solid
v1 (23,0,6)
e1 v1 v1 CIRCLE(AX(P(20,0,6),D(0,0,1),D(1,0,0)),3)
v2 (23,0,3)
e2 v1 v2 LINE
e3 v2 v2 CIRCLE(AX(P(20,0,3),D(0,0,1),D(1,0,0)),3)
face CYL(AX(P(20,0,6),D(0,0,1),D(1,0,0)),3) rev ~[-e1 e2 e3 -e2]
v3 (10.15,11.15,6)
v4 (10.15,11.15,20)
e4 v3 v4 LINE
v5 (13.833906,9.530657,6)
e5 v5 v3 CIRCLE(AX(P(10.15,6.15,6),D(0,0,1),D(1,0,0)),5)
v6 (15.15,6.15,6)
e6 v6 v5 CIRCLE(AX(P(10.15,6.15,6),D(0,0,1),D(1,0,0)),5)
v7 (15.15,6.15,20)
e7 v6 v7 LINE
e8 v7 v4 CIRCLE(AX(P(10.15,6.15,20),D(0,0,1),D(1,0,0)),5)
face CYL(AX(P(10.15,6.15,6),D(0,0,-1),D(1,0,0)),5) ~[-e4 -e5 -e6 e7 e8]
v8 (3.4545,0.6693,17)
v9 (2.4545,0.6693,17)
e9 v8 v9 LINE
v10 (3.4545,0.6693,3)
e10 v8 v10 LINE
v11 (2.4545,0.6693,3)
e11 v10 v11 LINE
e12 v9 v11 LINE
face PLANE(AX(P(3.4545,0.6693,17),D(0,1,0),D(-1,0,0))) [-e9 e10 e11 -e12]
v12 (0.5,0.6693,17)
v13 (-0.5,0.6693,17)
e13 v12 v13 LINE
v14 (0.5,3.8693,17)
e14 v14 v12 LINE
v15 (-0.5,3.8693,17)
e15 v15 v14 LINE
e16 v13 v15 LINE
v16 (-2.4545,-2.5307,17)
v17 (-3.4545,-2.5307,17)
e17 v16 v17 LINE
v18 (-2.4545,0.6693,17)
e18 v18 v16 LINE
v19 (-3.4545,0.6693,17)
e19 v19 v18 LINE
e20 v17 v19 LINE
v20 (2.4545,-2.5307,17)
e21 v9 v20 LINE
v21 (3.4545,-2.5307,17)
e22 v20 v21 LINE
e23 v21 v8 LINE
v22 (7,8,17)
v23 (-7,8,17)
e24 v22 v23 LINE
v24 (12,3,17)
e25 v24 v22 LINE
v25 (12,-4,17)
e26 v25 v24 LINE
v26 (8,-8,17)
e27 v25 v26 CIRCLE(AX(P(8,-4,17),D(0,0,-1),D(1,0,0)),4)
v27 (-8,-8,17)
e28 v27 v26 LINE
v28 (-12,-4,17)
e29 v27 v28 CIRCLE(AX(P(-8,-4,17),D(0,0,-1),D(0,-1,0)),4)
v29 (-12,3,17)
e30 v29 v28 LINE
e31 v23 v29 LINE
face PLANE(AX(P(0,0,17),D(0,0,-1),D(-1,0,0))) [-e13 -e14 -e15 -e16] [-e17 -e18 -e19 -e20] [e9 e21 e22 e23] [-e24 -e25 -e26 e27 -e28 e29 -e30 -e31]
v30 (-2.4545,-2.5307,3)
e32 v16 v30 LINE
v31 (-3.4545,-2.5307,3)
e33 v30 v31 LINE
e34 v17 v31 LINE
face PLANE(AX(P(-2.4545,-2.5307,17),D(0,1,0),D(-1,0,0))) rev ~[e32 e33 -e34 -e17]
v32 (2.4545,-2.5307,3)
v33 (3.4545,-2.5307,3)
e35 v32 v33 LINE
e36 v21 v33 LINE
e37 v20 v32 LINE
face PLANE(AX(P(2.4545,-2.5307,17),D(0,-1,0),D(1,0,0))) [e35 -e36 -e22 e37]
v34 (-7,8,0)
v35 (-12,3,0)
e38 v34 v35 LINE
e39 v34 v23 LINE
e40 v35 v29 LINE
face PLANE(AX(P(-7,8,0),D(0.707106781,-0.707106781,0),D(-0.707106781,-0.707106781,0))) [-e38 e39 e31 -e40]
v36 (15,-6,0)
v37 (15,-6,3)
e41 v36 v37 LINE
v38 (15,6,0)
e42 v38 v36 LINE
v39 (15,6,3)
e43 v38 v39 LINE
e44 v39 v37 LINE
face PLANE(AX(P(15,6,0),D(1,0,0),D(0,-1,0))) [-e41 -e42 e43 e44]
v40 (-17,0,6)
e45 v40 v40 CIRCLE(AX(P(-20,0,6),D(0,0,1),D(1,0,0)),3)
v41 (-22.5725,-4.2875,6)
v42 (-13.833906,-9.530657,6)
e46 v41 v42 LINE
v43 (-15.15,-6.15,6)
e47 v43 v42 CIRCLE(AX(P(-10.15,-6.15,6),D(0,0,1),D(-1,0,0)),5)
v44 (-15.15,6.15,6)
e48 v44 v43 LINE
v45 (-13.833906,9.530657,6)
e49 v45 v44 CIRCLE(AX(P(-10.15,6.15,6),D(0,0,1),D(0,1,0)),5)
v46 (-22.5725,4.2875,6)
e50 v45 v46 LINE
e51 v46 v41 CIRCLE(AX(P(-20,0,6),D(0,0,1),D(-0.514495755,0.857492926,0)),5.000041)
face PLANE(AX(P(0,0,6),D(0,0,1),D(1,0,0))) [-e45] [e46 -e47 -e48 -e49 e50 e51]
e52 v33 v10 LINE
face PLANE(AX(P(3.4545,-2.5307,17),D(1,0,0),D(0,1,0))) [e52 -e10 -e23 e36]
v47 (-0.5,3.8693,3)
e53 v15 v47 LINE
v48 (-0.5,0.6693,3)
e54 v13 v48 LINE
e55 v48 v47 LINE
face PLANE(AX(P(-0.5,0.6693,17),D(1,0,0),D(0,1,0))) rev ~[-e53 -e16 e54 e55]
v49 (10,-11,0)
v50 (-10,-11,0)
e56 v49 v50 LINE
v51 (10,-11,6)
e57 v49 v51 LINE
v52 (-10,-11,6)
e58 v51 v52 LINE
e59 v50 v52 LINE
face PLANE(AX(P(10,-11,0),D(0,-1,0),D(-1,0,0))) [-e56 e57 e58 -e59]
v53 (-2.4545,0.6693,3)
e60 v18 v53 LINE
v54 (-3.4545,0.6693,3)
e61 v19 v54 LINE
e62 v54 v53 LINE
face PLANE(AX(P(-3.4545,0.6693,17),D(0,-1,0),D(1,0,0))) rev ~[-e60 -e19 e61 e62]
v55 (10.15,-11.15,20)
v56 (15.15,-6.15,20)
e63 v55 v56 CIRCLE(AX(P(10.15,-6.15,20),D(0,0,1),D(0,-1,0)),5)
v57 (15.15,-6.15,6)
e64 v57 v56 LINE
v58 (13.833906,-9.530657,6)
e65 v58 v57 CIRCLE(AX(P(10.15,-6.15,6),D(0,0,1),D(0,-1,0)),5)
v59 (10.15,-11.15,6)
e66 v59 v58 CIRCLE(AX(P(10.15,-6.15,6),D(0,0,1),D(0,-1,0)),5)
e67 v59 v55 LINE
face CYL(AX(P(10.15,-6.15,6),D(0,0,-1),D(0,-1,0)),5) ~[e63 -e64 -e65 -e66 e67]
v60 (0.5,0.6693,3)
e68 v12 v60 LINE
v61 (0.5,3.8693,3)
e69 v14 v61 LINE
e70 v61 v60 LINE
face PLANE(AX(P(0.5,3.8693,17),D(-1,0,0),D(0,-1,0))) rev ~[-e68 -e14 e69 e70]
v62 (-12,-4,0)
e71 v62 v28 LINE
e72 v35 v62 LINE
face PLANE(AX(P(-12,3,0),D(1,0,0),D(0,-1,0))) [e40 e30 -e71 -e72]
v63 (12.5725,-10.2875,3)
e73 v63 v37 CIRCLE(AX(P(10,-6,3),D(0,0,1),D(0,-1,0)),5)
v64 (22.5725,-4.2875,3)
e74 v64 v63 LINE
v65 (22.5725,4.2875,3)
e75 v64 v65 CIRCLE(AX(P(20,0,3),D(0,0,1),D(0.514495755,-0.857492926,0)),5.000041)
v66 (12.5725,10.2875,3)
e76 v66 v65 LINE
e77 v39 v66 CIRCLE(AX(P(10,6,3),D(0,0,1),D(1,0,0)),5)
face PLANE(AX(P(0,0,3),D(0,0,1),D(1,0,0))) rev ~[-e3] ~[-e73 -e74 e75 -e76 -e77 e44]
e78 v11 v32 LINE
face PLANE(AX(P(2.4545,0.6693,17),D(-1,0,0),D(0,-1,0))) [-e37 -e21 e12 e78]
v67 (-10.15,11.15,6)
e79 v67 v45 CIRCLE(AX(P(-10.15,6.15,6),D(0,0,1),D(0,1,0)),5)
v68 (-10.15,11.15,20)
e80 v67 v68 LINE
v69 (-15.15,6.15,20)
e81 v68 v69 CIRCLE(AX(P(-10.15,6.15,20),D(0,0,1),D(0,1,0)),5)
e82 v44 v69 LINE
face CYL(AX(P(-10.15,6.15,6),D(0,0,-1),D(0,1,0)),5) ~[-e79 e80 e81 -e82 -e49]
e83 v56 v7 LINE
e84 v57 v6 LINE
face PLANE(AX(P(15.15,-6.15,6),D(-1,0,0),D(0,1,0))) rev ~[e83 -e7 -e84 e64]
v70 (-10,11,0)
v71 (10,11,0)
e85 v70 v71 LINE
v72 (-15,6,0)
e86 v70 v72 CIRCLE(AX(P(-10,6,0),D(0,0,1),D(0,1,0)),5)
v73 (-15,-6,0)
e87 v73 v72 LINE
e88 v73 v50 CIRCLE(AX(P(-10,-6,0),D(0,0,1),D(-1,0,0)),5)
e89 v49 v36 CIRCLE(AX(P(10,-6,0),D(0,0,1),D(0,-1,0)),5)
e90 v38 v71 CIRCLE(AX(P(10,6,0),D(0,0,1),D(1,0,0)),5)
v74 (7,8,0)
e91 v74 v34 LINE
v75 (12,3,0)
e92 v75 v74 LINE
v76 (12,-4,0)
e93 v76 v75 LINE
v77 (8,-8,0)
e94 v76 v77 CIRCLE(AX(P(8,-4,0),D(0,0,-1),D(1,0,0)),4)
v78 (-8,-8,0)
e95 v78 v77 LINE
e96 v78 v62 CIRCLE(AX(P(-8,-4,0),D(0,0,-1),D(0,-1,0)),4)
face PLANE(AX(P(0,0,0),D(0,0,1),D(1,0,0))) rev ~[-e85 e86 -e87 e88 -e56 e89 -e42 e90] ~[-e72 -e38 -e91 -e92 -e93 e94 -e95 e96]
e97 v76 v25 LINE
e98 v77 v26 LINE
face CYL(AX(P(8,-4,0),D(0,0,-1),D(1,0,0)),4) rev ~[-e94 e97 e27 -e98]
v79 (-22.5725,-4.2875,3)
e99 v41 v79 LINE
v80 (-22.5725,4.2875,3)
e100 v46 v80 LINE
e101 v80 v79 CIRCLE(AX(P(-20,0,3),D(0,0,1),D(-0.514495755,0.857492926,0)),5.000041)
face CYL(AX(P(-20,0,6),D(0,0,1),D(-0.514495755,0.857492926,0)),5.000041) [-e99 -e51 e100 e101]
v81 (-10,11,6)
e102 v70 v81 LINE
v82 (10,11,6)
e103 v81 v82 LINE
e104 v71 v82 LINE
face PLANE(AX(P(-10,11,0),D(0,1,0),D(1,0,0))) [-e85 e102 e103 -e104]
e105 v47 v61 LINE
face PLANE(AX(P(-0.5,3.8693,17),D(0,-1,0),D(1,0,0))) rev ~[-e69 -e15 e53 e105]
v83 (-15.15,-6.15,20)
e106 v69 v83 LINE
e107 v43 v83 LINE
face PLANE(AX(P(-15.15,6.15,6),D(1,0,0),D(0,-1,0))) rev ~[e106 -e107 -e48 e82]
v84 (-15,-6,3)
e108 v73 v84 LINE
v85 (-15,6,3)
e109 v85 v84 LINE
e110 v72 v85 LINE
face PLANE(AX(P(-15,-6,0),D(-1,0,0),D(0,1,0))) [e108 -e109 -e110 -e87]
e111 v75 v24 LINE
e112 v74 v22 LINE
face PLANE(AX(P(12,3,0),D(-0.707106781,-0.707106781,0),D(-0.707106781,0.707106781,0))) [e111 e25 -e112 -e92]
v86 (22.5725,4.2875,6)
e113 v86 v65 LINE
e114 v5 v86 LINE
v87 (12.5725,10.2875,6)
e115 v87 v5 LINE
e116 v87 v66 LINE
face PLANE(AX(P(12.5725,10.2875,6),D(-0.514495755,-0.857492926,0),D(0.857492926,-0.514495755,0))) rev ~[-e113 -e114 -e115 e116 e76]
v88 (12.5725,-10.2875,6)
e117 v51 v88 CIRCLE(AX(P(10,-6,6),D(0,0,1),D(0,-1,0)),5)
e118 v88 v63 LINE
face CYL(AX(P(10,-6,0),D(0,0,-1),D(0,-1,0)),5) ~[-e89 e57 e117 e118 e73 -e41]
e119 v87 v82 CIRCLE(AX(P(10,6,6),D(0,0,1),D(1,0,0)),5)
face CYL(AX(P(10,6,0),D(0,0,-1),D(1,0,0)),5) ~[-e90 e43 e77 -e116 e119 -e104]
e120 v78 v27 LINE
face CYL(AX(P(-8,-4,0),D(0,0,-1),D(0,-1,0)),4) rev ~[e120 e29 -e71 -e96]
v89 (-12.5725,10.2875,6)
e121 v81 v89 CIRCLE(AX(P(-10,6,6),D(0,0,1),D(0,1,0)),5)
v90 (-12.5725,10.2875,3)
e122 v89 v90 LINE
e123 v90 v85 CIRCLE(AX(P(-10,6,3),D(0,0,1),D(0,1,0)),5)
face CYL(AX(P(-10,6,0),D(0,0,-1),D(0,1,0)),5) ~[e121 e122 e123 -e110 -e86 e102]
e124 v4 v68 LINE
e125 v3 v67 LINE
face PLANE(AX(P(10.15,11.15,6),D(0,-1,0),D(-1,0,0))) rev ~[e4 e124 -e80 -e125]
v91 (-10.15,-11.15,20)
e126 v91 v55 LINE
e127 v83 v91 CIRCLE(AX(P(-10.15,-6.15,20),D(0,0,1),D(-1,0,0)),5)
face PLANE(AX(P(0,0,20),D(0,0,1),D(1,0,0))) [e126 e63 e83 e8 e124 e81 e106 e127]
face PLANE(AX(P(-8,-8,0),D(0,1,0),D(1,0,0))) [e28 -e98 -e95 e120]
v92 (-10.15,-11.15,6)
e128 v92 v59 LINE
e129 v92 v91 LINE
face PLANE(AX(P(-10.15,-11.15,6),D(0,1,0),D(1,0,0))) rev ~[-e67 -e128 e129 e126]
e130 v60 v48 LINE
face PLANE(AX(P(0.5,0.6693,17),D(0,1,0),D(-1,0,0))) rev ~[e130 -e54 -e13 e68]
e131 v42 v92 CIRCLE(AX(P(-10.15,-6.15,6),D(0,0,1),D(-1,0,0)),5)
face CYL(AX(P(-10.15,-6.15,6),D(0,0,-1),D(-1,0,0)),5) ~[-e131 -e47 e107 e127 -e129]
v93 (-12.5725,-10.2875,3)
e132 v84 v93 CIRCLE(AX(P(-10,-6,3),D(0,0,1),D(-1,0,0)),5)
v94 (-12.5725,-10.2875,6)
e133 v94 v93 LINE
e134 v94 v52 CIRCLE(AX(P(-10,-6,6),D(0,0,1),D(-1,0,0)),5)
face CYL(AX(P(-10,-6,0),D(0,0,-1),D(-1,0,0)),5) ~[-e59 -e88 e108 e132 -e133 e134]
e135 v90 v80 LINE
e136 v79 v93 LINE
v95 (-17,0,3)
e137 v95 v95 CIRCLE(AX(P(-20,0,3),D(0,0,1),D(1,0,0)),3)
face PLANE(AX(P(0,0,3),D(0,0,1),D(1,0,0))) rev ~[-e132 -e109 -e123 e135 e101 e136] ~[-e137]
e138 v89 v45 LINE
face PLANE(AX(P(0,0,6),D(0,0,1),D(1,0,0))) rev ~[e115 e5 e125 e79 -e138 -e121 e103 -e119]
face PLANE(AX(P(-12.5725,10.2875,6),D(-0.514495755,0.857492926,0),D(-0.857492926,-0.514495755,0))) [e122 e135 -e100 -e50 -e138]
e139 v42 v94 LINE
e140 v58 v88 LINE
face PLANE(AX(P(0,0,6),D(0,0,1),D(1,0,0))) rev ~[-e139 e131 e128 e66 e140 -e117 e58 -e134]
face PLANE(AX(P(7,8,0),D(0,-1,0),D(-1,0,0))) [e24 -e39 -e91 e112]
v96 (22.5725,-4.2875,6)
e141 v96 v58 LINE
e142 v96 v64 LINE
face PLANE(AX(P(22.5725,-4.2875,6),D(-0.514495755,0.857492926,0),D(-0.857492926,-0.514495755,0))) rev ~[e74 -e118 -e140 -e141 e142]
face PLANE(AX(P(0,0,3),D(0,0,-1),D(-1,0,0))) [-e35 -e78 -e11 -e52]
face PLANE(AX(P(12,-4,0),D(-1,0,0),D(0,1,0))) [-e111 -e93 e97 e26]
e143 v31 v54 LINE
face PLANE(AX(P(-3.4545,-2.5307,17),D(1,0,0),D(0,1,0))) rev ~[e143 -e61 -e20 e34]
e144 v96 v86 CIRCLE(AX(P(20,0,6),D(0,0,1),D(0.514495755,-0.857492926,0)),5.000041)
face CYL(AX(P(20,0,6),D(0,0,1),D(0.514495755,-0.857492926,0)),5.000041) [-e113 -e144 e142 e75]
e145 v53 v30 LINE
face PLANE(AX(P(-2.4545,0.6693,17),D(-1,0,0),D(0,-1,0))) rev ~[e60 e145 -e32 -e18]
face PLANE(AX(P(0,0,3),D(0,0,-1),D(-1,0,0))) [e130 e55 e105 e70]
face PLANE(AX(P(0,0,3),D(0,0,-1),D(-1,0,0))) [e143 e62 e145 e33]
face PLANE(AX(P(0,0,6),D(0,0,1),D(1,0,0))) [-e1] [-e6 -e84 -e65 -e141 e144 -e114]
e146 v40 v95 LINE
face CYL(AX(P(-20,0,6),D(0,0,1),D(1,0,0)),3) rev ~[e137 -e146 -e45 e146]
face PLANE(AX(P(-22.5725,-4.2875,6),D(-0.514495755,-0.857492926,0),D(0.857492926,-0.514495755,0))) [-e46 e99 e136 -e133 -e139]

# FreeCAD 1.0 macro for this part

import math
import FreeCAD as App
import Part
import Sketcher

V = App.Vector
Q = App.Units.Quantity


def add_polygon(sketch, points):
    """Adds a closed chain of lines whose ends are joined by coincident constraints."""
    first, n = sketch.GeometryCount, len(points)
    for a, b in zip(points, points[1:] + points[:1]):
        sketch.addGeometry(Part.LineSegment(App.Vector(*a, 0), App.Vector(*b, 0)), False)
    for i in range(n):
        sketch.addConstraint(Sketcher.Constraint("Coincident", first + i, 2, first + (i + 1) % n, 1))

doc = App.newDocument("Part")
body = doc.addObject("PartDesign::Body", "Body")

# Sketch on XY plane
sketch1 = body.newObject("Sketcher::SketchObject", "Sketch")
sketch1.AttachmentSupport = (doc.getObject("XY_Plane"), [""])
sketch1.MapMode = "FlatFace"
sketch1.addGeometry([
    Part.LineSegment(V(10, 11, 0), V(-10, 11, 0)),  # 0
    Part.ArcOfCircle(Part.Circle(V(-10, 6, 0), V(0, 0, 1), 5), math.radians(90), math.radians(180)),  # 1
    Part.LineSegment(V(-15, 6, 0), V(-15, -6, 0)),  # 2
    Part.ArcOfCircle(Part.Circle(V(-10, -6, 0), V(0, 0, 1), 5), math.radians(180), math.radians(270)),  # 3
    Part.LineSegment(V(-10, -11, 0), V(10, -11, 0)),  # 4
    Part.ArcOfCircle(Part.Circle(V(10, -6, 0), V(0, 0, 1), 5), math.radians(-90), math.radians(0)),  # 5
    Part.LineSegment(V(15, -6, 0), V(15, 6, 0)),  # 6
    Part.ArcOfCircle(Part.Circle(V(10, 6, 0), V(0, 0, 1), 5), math.radians(0), math.radians(90)),  # 7
], False)
sketch1.addConstraint([
    Sketcher.Constraint("Tangent", 0, 2, 1, 1),
    Sketcher.Constraint("Tangent", 1, 2, 2, 1),
    Sketcher.Constraint("Tangent", 2, 2, 3, 1),
    Sketcher.Constraint("Tangent", 3, 2, 4, 1),
    Sketcher.Constraint("Tangent", 4, 2, 5, 1),
    Sketcher.Constraint("Tangent", 5, 2, 6, 1),
    Sketcher.Constraint("Tangent", 6, 2, 7, 1),
    Sketcher.Constraint("Tangent", 7, 2, 0, 1),
    Sketcher.Constraint("Horizontal", 0),
    Sketcher.Constraint("Vertical", 2),
    Sketcher.Constraint("Horizontal", 4),
    Sketcher.Constraint("Vertical", 6),
    Sketcher.Constraint("Equal", 1, 3),
    Sketcher.Constraint("Equal", 3, 5),
    Sketcher.Constraint("Equal", 5, 7),
    Sketcher.Constraint("Symmetric", 1, 3, 5, 3, -1, 1),
    Sketcher.Constraint("Radius", 1, Q("5 mm")),
    Sketcher.Constraint("DistanceX", 0, 2, 0, 1, Q("20 mm")),
    Sketcher.Constraint("DistanceY", 2, 2, 2, 1, Q("12 mm")),
])
pad1 = body.newObject("PartDesign::Pad", "Pad")
pad1.Profile = sketch1
pad1.Length = 6

# Sketch on XY plane
sketch2 = body.newObject("Sketcher::SketchObject", "Sketch001")
sketch2.AttachmentSupport = (doc.getObject("XY_Plane"), [""])
sketch2.MapMode = "FlatFace"
sketch2.AttachmentOffset = App.Placement(V(0, 0, 6), App.Rotation())
sketch2.addGeometry([
    Part.ArcOfCircle(Part.Circle(V(-10, 6, 0), V(0, 0, 1), 5), math.radians(121), math.radians(180)),  # 0
    Part.LineSegment(V(-12.6, 10.3, 0), V(-22.6, 4.3, 0)),  # 1
    Part.ArcOfCircle(Part.Circle(V(-20, 0, 0), V(0, 0, 1), 5), math.radians(121), math.radians(239)),  # 2
    Part.LineSegment(V(-22.6, -4.3, 0), V(-12.6, -10.3, 0)),  # 3
    Part.ArcOfCircle(Part.Circle(V(-10, -6, 0), V(0, 0, 1), 5), math.radians(180), math.radians(239)),  # 4
    Part.LineSegment(V(-15, -6, 0), V(-15, 6, 0)),  # 5
    Part.ArcOfCircle(Part.Circle(V(10, 6, 0), V(0, 0, 1), 5), math.radians(0), math.radians(59)),  # 6
    Part.LineSegment(V(15, 6, 0), V(15, -6, 0)),  # 7
    Part.ArcOfCircle(Part.Circle(V(10, -6, 0), V(0, 0, 1), 5), math.radians(-59), math.radians(0)),  # 8
    Part.LineSegment(V(12.6, -10.3, 0), V(22.6, -4.3, 0)),  # 9
    Part.ArcOfCircle(Part.Circle(V(20, 0, 0), V(0, 0, 1), 5), math.radians(-59), math.radians(59)),  # 10
    Part.LineSegment(V(22.6, 4.3, 0), V(12.6, 10.3, 0)),  # 11
], False)
sketch2.addConstraint([
    Sketcher.Constraint("Tangent", 0, 1, 1, 1),
    Sketcher.Constraint("Tangent", 1, 2, 2, 1),
    Sketcher.Constraint("Tangent", 2, 2, 3, 1),
    Sketcher.Constraint("Tangent", 3, 2, 4, 2),
    Sketcher.Constraint("Tangent", 4, 1, 5, 1),
    Sketcher.Constraint("Tangent", 5, 2, 0, 2),
    Sketcher.Constraint("Tangent", 6, 1, 7, 1),
    Sketcher.Constraint("Tangent", 7, 2, 8, 2),
    Sketcher.Constraint("Tangent", 8, 1, 9, 1),
    Sketcher.Constraint("Tangent", 9, 2, 10, 1),
    Sketcher.Constraint("Tangent", 10, 2, 11, 1),
    Sketcher.Constraint("Tangent", 11, 2, 6, 2),
    Sketcher.Constraint("Vertical", 5),
    Sketcher.Constraint("Vertical", 7),
    Sketcher.Constraint("Equal", 0, 2),
    Sketcher.Constraint("Equal", 2, 4),
    Sketcher.Constraint("Equal", 4, 6),
    Sketcher.Constraint("Equal", 6, 8),
    Sketcher.Constraint("Equal", 8, 10),
    Sketcher.Constraint("Symmetric", 4, 3, 6, 3, -1, 1),
    Sketcher.Constraint("Symmetric", 2, 3, 10, 3, -1, 1),
    Sketcher.Constraint("Symmetric", 3, 2, 8, 1, -2),
    Sketcher.Constraint("Parallel", 1, 9),
    Sketcher.Constraint("Radius", 0, Q("5 mm")),
    Sketcher.Constraint("DistanceX", 2, 3, 10, 3, Q("40 mm")),
    Sketcher.Constraint("DistanceX", 2, 3, 4, 1, Q("5 mm")),
    Sketcher.Constraint("DistanceY", 5, 1, 5, 2, Q("12 mm")),
])
pad2 = body.newObject("PartDesign::Pad", "Pad001")
pad2.Profile = sketch2
pad2.Length = 3
pad2.Reversed = True

# Sketch on XY plane
sketch3 = body.newObject("Sketcher::SketchObject", "Sketch002")
sketch3.AttachmentSupport = (doc.getObject("XY_Plane"), [""])
sketch3.MapMode = "FlatFace"
sketch3.AttachmentOffset = App.Placement(V(0, 0, 6), App.Rotation())
sketch3.addGeometry([
    Part.Circle(V(-20, 0, 0), V(0, 0, 1), 3),
    Part.Circle(V(20, 0, 0), V(0, 0, 1), 3),
], False)
sketch3.addConstraint([
    Sketcher.Constraint("Equal", 0, 1),
    Sketcher.Constraint("Symmetric", 0, 3, 1, 3, -1, 1),
    Sketcher.Constraint("PointOnObject", 0, 3, -1),
    Sketcher.Constraint("Diameter", 0, Q("6 mm")),
    Sketcher.Constraint("DistanceX", 0, 3, -1, 1, Q("20 mm")),
])
pocket1 = body.newObject("PartDesign::Pocket", "Pocket")
pocket1.Profile = sketch3
pocket1.Length = 3

# Sketch on XY plane
sketch4 = body.newObject("Sketcher::SketchObject", "Sketch003")
sketch4.AttachmentSupport = (doc.getObject("XY_Plane"), [""])
sketch4.MapMode = "FlatFace"
sketch4.AttachmentOffset = App.Placement(V(0, 0, 6), App.Rotation())
sketch4.addGeometry([
    Part.ArcOfCircle(Part.Circle(V(-10, -6, 0), V(0, 0, 1), 5), math.radians(180), math.radians(270)),  # 0
    Part.LineSegment(V(-10, -11, 0), V(10, -11, 0)),  # 1
    Part.ArcOfCircle(Part.Circle(V(10, -6, 0), V(0, 0, 1), 5), math.radians(-90), math.radians(0)),  # 2
    Part.LineSegment(V(15, -6, 0), V(15, 6, 0)),  # 3
    Part.ArcOfCircle(Part.Circle(V(10, 6, 0), V(0, 0, 1), 5), math.radians(0), math.radians(90)),  # 4
    Part.LineSegment(V(10, 11, 0), V(-10, 11, 0)),  # 5
    Part.ArcOfCircle(Part.Circle(V(-10, 6, 0), V(0, 0, 1), 5), math.radians(90), math.radians(180)),  # 6
    Part.LineSegment(V(-15, 6, 0), V(-15, -6, 0)),  # 7
], False)
sketch4.addConstraint([
    Sketcher.Constraint("Tangent", 0, 2, 1, 1),
    Sketcher.Constraint("Tangent", 1, 2, 2, 1),
    Sketcher.Constraint("Tangent", 2, 2, 3, 1),
    Sketcher.Constraint("Tangent", 3, 2, 4, 1),
    Sketcher.Constraint("Tangent", 4, 2, 5, 1),
    Sketcher.Constraint("Tangent", 5, 2, 6, 1),
    Sketcher.Constraint("Tangent", 6, 2, 7, 1),
    Sketcher.Constraint("Tangent", 7, 2, 0, 1),
    Sketcher.Constraint("Horizontal", 1),
    Sketcher.Constraint("Vertical", 3),
    Sketcher.Constraint("Horizontal", 5),
    Sketcher.Constraint("Vertical", 7),
    Sketcher.Constraint("Equal", 0, 2),
    Sketcher.Constraint("Equal", 2, 4),
    Sketcher.Constraint("Equal", 4, 6),
    Sketcher.Constraint("Symmetric", 0, 3, 4, 3, -1, 1),
    Sketcher.Constraint("Radius", 0, Q("5 mm")),
    Sketcher.Constraint("DistanceY", 0, 2, 5, 2, Q("22.3 mm")),
    Sketcher.Constraint("DistanceX", 1, 1, 1, 2, Q("20.3 mm")),
])
pad3 = body.newObject("PartDesign::Pad", "Pad002")
pad3.Profile = sketch4
pad3.Length = 14

# Sketch on XY plane
sketch5 = body.newObject("Sketcher::SketchObject", "Sketch004")
sketch5.AttachmentSupport = (doc.getObject("XY_Plane"), [""])
sketch5.MapMode = "FlatFace"
sketch5.addGeometry([
    Part.LineSegment(V(-7, 8, 0), V(7, 8, 0)),  # 0
    Part.LineSegment(V(7, 8, 0), V(12, 3, 0)),  # 1
    Part.LineSegment(V(12, 3, 0), V(12, -4, 0)),  # 2
    Part.ArcOfCircle(Part.Circle(V(8, -4, 0), V(0, 0, 1), 4), math.radians(-90), math.radians(0)),  # 3
    Part.LineSegment(V(8, -8, 0), V(-8, -8, 0)),  # 4
    Part.ArcOfCircle(Part.Circle(V(-8, -4, 0), V(0, 0, 1), 4), math.radians(180), math.radians(270)),  # 5
    Part.LineSegment(V(-12, -4, 0), V(-12, 3, 0)),  # 6
    Part.LineSegment(V(-12, 3, 0), V(-7, 8, 0)),  # 7
], False)
sketch5.addConstraint([
    Sketcher.Constraint("Coincident", 0, 2, 1, 1),
    Sketcher.Constraint("Coincident", 1, 2, 2, 1),
    Sketcher.Constraint("Tangent", 2, 2, 3, 2),
    Sketcher.Constraint("Tangent", 3, 1, 4, 1),
    Sketcher.Constraint("Tangent", 4, 2, 5, 2),
    Sketcher.Constraint("Tangent", 5, 1, 6, 1),
    Sketcher.Constraint("Coincident", 6, 2, 7, 1),
    Sketcher.Constraint("Coincident", 7, 2, 0, 1),
    Sketcher.Constraint("Horizontal", 0),
    Sketcher.Constraint("Vertical", 2),
    Sketcher.Constraint("Horizontal", 4),
    Sketcher.Constraint("Vertical", 6),
    Sketcher.Constraint("Equal", 3, 5),
    Sketcher.Constraint("Symmetric", 1, 2, 6, 2, -2),
    Sketcher.Constraint("Perpendicular", 1, 7),
    Sketcher.Constraint("Equal", 1, 7),
    Sketcher.Constraint("Radius", 3, Q("4 mm")),
    Sketcher.Constraint("DistanceX", 4, 2, 4, 1, Q("16 mm")),
    Sketcher.Constraint("DistanceY", 3, 3, -1, 1, Q("4 mm")),
    Sketcher.Constraint("DistanceX", 0, 2, 1, 2, Q("5 mm")),
    Sketcher.Constraint("DistanceY", 3, 1, 0, 2, Q("16 mm")),
])
pocket2 = body.newObject("PartDesign::Pocket", "Pocket001")
pocket2.Profile = sketch5
pocket2.Length = 17
pocket2.Reversed = True

# Sketch on XY plane
sketch6 = body.newObject("Sketcher::SketchObject", "Sketch005")
sketch6.AttachmentSupport = (doc.getObject("XY_Plane"), [""])
sketch6.MapMode = "FlatFace"
sketch6.AttachmentOffset = App.Placement(V(0, 0, 17), App.Rotation())
add_polygon(sketch6, [(-0.5, 0.7), (-0.5, 3.9), (0.5, 3.9), (0.5, 0.7)])  # lines 0-3
add_polygon(sketch6, [(-3.5, -2.5), (-3.5, 0.7), (-2.5, 0.7), (-2.5, -2.5)])  # lines 4-7
add_polygon(sketch6, [(2.5, 0.7), (3.5, 0.7), (3.5, -2.5), (2.5, -2.5)])  # lines 8-11
sketch6.addConstraint([
    Sketcher.Constraint("Vertical", 0),
    Sketcher.Constraint("Horizontal", 1),
    Sketcher.Constraint("Vertical", 2),
    Sketcher.Constraint("Horizontal", 3),
    Sketcher.Constraint("Vertical", 4),
    Sketcher.Constraint("Horizontal", 5),
    Sketcher.Constraint("Vertical", 6),
    Sketcher.Constraint("Horizontal", 7),
    Sketcher.Constraint("Horizontal", 8),
    Sketcher.Constraint("Vertical", 9),
    Sketcher.Constraint("Horizontal", 10),
    Sketcher.Constraint("Vertical", 11),
    Sketcher.Constraint("Symmetric", 4, 2, 8, 2, -2),
    Sketcher.Constraint("Symmetric", 6, 2, 10, 2, -2),
    Sketcher.Constraint("Horizontal", 3, 2, 4, 2),
    Sketcher.Constraint("Equal", 3, 5),
    Sketcher.Constraint("Equal", 2, 4),
    Sketcher.Constraint("DistanceX", 1, 1, 1, 2, Q("1 mm")),
    Sketcher.Constraint("DistanceY", 0, 1, 0, 2, Q("3.2 mm")),
    Sketcher.Constraint("DistanceX", 0, 2, -1, 1, Q("0.5 mm")),
    Sketcher.Constraint("DistanceX", 5, 2, 8, 2, Q("5.909 mm")),
    Sketcher.Constraint("DistanceY", -1, 1, 0, 2, Q("3.8693 mm")),
])
pad4 = body.newObject("PartDesign::Pad", "Pad003")
pad4.Profile = sketch6
pad4.Length = 14
pad4.Reversed = True

doc.recompute()
